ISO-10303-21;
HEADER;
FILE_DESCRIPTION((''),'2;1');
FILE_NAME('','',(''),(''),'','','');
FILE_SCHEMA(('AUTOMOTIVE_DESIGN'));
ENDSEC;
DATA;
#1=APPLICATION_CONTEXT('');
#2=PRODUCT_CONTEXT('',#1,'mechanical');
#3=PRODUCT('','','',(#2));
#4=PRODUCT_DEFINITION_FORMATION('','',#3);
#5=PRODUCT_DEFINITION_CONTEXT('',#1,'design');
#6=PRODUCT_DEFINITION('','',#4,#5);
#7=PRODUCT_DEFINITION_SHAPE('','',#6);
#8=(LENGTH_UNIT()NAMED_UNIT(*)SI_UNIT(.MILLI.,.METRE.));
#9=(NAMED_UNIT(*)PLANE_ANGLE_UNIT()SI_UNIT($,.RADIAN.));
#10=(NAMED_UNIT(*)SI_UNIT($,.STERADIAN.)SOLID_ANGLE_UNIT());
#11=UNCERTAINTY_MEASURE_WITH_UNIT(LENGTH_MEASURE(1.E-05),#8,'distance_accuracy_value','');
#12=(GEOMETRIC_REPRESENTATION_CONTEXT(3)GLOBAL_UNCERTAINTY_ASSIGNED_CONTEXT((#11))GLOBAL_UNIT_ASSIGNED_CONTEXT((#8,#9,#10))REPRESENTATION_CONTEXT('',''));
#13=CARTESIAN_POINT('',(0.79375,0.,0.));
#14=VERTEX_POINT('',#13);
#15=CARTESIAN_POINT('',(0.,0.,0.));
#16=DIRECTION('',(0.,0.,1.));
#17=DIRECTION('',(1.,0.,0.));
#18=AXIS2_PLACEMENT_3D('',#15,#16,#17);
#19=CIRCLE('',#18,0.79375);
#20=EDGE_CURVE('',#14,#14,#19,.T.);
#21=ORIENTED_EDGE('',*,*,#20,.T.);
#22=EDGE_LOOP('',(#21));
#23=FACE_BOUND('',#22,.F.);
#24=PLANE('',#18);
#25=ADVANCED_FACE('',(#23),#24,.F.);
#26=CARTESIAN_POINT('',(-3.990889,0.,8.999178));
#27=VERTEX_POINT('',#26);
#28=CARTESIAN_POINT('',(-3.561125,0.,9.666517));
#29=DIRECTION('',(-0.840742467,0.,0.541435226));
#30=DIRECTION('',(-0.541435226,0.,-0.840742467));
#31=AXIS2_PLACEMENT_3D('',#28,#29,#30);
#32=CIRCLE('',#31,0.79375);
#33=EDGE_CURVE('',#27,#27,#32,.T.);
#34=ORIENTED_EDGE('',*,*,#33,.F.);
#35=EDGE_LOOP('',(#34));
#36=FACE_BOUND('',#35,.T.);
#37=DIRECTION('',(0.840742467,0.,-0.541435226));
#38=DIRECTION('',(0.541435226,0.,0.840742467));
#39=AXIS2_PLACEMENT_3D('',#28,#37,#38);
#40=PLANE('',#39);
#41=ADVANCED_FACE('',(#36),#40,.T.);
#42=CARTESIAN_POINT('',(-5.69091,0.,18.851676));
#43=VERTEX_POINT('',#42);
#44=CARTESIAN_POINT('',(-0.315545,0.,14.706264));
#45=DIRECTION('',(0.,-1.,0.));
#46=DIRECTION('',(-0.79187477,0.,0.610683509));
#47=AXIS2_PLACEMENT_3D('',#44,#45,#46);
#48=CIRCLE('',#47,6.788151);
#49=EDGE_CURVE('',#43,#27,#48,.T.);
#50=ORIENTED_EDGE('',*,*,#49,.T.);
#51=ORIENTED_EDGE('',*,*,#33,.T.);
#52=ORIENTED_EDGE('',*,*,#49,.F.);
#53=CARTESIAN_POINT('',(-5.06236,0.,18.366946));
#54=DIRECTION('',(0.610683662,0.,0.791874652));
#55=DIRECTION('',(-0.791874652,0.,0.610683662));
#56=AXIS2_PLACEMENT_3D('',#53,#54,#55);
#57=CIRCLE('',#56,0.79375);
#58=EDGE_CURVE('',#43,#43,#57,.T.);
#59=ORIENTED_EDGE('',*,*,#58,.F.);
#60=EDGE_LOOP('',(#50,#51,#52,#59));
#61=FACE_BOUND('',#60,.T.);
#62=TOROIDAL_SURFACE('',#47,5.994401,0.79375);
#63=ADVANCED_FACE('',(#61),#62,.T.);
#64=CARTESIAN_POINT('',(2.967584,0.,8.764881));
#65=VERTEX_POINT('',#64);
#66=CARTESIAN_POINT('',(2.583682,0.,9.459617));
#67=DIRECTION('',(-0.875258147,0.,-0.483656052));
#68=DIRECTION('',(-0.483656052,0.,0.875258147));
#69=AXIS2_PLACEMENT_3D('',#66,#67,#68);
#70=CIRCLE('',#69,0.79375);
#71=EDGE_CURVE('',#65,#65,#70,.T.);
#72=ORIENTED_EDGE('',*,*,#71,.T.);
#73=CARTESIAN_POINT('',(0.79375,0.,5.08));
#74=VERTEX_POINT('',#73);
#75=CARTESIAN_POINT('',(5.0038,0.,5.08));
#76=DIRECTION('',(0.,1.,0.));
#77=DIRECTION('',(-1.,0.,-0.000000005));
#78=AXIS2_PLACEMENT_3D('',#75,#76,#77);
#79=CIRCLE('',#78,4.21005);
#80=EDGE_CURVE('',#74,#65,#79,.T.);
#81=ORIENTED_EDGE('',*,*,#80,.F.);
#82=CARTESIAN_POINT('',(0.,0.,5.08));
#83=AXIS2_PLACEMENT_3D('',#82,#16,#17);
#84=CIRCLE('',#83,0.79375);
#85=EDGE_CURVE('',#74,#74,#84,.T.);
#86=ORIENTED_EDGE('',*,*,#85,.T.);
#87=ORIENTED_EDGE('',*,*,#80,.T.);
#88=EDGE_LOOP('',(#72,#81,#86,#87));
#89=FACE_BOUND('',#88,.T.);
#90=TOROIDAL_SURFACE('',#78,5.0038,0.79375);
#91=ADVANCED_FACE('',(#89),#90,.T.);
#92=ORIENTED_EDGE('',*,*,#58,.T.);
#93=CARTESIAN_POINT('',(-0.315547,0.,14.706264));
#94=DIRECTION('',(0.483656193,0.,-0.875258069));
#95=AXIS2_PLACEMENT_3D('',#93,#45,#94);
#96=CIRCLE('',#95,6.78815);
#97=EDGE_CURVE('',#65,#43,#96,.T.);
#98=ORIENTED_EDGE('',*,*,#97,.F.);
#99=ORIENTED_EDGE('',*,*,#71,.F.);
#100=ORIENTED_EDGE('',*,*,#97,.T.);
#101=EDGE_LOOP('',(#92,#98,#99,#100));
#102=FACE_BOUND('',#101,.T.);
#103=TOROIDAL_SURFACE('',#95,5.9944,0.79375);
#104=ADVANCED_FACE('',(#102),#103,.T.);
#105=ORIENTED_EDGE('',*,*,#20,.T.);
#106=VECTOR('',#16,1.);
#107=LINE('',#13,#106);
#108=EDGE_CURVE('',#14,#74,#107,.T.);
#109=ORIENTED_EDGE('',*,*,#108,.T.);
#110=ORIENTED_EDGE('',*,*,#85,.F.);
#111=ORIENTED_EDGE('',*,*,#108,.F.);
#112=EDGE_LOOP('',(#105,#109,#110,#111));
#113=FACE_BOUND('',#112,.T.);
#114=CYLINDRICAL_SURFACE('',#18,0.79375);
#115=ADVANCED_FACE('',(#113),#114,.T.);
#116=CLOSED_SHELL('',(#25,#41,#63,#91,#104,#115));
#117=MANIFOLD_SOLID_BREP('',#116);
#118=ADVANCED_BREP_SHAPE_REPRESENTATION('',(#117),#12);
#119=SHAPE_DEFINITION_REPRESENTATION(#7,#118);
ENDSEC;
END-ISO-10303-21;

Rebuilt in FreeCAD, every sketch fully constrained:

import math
import FreeCAD as App
import Part
import Sketcher

V = App.Vector
Q = App.Units.Quantity

doc = App.newDocument("Part")
params = doc.addObject("Spreadsheet::Sheet", "Params")
for row, (alias, value) in enumerate([
    ("sketch1_diameter", "0.0625 in"),
    ("sketch2_height", "0.2 in"),
    ("sketch2_radius", "0.197 in"),
    ("sketch2_radius2", "0.236 in"),
], start=1):
    params.set(f"A{row}", alias)
    params.set(f"B{row}", "=" + value)
    params.setAlias(f"B{row}", alias)

body = doc.addObject("PartDesign::Body", "Body")

sketch1 = body.newObject("Sketcher::SketchObject", "Sketch")
sketch1.AttachmentSupport = (doc.getObject("XY_Plane"), [""])
sketch1.MapMode = "FlatFace"
sketch1.addGeometry(Part.Circle(V(0, 0, 0), V(0, 0, 1), 0.8), False)
sketch1.addConstraint(Sketcher.Constraint("Coincident", 0, 3, -1, 1))
sketch1.addConstraint(Sketcher.Constraint("Diameter", 0, Q("0.0625 in")))
sketch1.setExpression("Constraints[1]", "Params.sketch1_diameter")

sketch2 = body.newObject("Sketcher::SketchObject", "Sketch001")
sketch2.AttachmentSupport = (doc.getObject("XZ_Plane"), [""])
sketch2.MapMode = "FlatFace"
sketch2.addGeometry(Part.LineSegment(V(0, 0, 0), V(0, 5, 0)), False)
sketch2.addGeometry(Part.ArcOfCircle(Part.Circle(V(5, 5, 0), V(0, 0, 1), 5), math.radians(119), math.radians(180)), False)
sketch2.addGeometry(Part.ArcOfCircle(Part.Circle(V(0, 15, 0), V(0, 0, 1), 6), math.radians(-61), math.radians(142)), False)
sketch2.addGeometry(Part.ArcOfCircle(Part.Circle(V(0, 15, 0), V(0, 0, 1), 6), math.radians(142), math.radians(237)), False)
sketch2.addConstraint(Sketcher.Constraint("Tangent", 0, 2, 1, 2))
sketch2.addConstraint(Sketcher.Constraint("Tangent", 1, 1, 2, 1))
sketch2.addConstraint(Sketcher.Constraint("Tangent", 2, 2, 3, 1))
sketch2.addConstraint(Sketcher.Constraint("Vertical", 0))
sketch2.addConstraint(Sketcher.Constraint("Coincident", 0, 1, -1, 1))
sketch2.addConstraint(Sketcher.Constraint("Equal", 2, 3))
sketch2.addConstraint(Sketcher.Constraint("DistanceY", 0, 1, 0, 2, Q("0.2 in")))
sketch2.addConstraint(Sketcher.Constraint("Radius", 1, Q("0.197 in")))
sketch2.addConstraint(Sketcher.Constraint("Radius", 2, Q("0.236 in")))
sketch2.addConstraint(Sketcher.Constraint("DistanceY", 1, 1, 3, 2, Q("0.2069 mm")))
sketch2.addConstraint(Sketcher.Constraint("DistanceX", -1, 1, 1, 1, Q("2.583682 mm")))
sketch2.addConstraint(Sketcher.Constraint("DistanceX", 2, 2, -1, 1, Q("5.06236 mm")))
sketch2.setExpression("Constraints[6]", "Params.sketch2_height")
sketch2.setExpression("Constraints[7]", "Params.sketch2_radius")
sketch2.setExpression("Constraints[8]", "Params.sketch2_radius2")
doc.recompute()

additivepipe = body.newObject("PartDesign::AdditivePipe", "AdditivePipe")
additivepipe.Profile = sketch1
additivepipe.Spine = (sketch2, ["Edge1", "Edge2", "Edge3", "Edge4"])

doc.recompute()
